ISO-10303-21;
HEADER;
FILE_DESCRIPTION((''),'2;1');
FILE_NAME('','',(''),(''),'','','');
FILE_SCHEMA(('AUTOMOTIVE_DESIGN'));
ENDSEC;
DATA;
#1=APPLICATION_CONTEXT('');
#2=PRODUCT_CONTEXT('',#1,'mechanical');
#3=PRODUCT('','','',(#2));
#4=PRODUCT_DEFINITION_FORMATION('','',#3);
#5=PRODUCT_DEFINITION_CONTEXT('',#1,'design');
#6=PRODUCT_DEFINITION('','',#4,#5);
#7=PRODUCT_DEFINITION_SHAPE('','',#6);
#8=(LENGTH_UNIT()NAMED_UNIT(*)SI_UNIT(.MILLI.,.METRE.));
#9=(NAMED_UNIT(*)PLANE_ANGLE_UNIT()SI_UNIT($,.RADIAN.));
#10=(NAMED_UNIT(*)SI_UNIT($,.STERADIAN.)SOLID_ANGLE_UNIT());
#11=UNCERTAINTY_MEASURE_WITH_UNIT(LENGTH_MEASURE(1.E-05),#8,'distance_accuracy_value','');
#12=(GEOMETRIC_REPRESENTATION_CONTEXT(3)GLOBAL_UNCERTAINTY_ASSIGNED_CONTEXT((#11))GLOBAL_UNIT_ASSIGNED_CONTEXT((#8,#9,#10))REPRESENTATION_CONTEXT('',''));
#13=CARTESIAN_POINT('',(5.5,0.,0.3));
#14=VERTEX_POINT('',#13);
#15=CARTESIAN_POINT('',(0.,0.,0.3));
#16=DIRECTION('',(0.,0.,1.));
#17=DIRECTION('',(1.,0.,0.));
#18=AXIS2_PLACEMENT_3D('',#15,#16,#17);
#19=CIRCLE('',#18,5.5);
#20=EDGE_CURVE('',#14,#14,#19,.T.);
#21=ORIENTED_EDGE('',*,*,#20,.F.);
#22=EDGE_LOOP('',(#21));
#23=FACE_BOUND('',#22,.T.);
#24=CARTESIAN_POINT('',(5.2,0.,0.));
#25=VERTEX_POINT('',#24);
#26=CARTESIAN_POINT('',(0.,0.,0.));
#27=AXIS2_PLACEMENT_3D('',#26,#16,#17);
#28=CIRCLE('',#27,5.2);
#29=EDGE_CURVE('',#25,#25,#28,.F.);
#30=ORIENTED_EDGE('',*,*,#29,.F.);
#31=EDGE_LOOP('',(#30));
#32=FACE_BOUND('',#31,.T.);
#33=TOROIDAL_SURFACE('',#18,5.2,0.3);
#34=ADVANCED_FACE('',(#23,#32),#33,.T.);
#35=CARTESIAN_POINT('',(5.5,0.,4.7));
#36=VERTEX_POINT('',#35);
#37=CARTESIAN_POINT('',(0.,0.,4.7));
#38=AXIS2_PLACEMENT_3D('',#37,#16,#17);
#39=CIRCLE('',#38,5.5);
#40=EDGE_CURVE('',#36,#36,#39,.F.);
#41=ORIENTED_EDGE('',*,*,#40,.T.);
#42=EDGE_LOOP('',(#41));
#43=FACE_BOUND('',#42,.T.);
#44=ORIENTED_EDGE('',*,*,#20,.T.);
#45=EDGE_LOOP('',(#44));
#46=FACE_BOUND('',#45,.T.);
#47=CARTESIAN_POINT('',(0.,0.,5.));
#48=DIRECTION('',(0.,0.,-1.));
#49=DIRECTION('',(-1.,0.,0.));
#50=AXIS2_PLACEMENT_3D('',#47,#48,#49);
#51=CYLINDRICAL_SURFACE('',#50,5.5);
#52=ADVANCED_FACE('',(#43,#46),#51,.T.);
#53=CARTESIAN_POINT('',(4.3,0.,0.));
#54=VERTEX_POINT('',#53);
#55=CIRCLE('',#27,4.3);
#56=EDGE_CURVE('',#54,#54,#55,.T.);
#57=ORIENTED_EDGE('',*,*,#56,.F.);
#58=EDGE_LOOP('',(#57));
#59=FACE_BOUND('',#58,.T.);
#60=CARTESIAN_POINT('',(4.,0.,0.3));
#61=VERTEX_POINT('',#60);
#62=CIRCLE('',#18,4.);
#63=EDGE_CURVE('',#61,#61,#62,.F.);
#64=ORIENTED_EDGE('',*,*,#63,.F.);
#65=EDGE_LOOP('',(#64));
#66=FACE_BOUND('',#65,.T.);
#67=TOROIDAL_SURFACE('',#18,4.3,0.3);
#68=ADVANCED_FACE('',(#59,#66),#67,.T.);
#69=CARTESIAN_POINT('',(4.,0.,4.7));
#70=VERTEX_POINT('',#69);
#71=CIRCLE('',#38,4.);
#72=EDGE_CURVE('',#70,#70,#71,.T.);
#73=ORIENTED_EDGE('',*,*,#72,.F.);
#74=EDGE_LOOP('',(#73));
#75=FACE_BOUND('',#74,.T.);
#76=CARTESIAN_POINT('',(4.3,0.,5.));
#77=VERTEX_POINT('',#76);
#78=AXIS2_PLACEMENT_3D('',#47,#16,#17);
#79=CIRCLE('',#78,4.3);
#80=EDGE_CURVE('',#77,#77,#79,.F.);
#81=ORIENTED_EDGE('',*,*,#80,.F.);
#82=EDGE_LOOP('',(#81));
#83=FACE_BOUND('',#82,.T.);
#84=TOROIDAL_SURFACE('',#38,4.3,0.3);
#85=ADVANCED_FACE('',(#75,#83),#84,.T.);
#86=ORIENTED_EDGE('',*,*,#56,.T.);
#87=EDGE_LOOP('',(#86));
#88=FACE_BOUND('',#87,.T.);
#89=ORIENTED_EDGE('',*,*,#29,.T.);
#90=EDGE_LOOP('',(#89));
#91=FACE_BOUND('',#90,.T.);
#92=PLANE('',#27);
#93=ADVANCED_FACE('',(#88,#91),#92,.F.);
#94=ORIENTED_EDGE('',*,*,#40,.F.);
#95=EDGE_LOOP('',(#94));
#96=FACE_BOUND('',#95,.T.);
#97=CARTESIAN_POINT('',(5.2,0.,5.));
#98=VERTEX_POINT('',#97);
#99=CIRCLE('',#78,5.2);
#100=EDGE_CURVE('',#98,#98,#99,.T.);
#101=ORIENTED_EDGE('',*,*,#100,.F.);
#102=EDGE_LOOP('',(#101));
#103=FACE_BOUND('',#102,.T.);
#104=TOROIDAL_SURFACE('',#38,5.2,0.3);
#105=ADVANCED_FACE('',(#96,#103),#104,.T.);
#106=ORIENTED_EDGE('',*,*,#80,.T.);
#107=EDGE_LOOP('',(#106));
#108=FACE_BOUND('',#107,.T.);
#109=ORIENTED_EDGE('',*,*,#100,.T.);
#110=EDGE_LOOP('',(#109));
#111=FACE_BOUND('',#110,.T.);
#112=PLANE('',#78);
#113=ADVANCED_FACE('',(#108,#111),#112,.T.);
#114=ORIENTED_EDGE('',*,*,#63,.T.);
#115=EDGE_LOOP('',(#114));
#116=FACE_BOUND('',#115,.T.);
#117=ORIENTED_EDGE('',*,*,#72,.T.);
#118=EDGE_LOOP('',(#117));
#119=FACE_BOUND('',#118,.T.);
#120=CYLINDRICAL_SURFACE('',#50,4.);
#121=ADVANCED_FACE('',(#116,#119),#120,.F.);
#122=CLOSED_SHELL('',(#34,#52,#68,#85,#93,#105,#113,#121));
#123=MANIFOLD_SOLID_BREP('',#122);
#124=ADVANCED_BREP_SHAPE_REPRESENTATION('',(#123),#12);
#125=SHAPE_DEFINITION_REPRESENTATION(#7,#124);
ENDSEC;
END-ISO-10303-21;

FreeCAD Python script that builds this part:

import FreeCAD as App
import Part
import Sketcher
from FreeCAD import Vector


def edges_at(feature, points):
    """Names of the edges that pass closest to the given points."""
    edges = feature.Shape.Edges
    near = lambda p: min(range(len(edges)), key=lambda i: edges[i].distToShape(Part.Vertex(*p))[0])
    return sorted({f"Edge{near(p) + 1}" for p in points})

doc = App.newDocument("Part")
body = doc.addObject("PartDesign::Body", "Body")

# Sketch on XY plane
sketch1 = doc.addObject("Sketcher::SketchObject", "Sketch")
body.addObject(sketch1)
sketch1.AttachmentSupport = (doc.XY_Plane, [""])
sketch1.MapMode = "FlatFace"
sketch1.addGeometry([
    Part.Circle(Vector(0, 0, 0), Vector(0, 0, 1), 5.5),
    Part.Circle(Vector(0, 0, 0), Vector(0, 0, 1), 4),
], False)
sketch1.addConstraint([
    Sketcher.Constraint("Coincident", 0, 3, -1, 1),
    Sketcher.Constraint("Coincident", 1, 3, -1, 1),
    Sketcher.Constraint("Diameter", 0, 11.0),
    Sketcher.Constraint("Diameter", 1, 8.0),
])
pad1 = doc.addObject("PartDesign::Pad", "Pad")
body.addObject(pad1)
pad1.Profile = sketch1
pad1.Length = 5
doc.recompute()

fillet = doc.addObject("PartDesign::Fillet", "Fillet")
body.addObject(fillet)
fillet.Base = (pad1, edges_at(pad1, [(-5.5, 0, 0)]))
fillet.Radius = 0.3
doc.recompute()

fillet2 = doc.addObject("PartDesign::Fillet", "Fillet001")
body.addObject(fillet2)
fillet2.Base = (fillet, edges_at(fillet, [(-4, 0, 0)]))
fillet2.Radius = 0.3
doc.recompute()

fillet3 = doc.addObject("PartDesign::Fillet", "Fillet002")
body.addObject(fillet3)
fillet3.Base = (fillet2, edges_at(fillet2, [(-5.5, 0, 5), (-4, 0, 5)]))
fillet3.Radius = 0.3

doc.recompute()
